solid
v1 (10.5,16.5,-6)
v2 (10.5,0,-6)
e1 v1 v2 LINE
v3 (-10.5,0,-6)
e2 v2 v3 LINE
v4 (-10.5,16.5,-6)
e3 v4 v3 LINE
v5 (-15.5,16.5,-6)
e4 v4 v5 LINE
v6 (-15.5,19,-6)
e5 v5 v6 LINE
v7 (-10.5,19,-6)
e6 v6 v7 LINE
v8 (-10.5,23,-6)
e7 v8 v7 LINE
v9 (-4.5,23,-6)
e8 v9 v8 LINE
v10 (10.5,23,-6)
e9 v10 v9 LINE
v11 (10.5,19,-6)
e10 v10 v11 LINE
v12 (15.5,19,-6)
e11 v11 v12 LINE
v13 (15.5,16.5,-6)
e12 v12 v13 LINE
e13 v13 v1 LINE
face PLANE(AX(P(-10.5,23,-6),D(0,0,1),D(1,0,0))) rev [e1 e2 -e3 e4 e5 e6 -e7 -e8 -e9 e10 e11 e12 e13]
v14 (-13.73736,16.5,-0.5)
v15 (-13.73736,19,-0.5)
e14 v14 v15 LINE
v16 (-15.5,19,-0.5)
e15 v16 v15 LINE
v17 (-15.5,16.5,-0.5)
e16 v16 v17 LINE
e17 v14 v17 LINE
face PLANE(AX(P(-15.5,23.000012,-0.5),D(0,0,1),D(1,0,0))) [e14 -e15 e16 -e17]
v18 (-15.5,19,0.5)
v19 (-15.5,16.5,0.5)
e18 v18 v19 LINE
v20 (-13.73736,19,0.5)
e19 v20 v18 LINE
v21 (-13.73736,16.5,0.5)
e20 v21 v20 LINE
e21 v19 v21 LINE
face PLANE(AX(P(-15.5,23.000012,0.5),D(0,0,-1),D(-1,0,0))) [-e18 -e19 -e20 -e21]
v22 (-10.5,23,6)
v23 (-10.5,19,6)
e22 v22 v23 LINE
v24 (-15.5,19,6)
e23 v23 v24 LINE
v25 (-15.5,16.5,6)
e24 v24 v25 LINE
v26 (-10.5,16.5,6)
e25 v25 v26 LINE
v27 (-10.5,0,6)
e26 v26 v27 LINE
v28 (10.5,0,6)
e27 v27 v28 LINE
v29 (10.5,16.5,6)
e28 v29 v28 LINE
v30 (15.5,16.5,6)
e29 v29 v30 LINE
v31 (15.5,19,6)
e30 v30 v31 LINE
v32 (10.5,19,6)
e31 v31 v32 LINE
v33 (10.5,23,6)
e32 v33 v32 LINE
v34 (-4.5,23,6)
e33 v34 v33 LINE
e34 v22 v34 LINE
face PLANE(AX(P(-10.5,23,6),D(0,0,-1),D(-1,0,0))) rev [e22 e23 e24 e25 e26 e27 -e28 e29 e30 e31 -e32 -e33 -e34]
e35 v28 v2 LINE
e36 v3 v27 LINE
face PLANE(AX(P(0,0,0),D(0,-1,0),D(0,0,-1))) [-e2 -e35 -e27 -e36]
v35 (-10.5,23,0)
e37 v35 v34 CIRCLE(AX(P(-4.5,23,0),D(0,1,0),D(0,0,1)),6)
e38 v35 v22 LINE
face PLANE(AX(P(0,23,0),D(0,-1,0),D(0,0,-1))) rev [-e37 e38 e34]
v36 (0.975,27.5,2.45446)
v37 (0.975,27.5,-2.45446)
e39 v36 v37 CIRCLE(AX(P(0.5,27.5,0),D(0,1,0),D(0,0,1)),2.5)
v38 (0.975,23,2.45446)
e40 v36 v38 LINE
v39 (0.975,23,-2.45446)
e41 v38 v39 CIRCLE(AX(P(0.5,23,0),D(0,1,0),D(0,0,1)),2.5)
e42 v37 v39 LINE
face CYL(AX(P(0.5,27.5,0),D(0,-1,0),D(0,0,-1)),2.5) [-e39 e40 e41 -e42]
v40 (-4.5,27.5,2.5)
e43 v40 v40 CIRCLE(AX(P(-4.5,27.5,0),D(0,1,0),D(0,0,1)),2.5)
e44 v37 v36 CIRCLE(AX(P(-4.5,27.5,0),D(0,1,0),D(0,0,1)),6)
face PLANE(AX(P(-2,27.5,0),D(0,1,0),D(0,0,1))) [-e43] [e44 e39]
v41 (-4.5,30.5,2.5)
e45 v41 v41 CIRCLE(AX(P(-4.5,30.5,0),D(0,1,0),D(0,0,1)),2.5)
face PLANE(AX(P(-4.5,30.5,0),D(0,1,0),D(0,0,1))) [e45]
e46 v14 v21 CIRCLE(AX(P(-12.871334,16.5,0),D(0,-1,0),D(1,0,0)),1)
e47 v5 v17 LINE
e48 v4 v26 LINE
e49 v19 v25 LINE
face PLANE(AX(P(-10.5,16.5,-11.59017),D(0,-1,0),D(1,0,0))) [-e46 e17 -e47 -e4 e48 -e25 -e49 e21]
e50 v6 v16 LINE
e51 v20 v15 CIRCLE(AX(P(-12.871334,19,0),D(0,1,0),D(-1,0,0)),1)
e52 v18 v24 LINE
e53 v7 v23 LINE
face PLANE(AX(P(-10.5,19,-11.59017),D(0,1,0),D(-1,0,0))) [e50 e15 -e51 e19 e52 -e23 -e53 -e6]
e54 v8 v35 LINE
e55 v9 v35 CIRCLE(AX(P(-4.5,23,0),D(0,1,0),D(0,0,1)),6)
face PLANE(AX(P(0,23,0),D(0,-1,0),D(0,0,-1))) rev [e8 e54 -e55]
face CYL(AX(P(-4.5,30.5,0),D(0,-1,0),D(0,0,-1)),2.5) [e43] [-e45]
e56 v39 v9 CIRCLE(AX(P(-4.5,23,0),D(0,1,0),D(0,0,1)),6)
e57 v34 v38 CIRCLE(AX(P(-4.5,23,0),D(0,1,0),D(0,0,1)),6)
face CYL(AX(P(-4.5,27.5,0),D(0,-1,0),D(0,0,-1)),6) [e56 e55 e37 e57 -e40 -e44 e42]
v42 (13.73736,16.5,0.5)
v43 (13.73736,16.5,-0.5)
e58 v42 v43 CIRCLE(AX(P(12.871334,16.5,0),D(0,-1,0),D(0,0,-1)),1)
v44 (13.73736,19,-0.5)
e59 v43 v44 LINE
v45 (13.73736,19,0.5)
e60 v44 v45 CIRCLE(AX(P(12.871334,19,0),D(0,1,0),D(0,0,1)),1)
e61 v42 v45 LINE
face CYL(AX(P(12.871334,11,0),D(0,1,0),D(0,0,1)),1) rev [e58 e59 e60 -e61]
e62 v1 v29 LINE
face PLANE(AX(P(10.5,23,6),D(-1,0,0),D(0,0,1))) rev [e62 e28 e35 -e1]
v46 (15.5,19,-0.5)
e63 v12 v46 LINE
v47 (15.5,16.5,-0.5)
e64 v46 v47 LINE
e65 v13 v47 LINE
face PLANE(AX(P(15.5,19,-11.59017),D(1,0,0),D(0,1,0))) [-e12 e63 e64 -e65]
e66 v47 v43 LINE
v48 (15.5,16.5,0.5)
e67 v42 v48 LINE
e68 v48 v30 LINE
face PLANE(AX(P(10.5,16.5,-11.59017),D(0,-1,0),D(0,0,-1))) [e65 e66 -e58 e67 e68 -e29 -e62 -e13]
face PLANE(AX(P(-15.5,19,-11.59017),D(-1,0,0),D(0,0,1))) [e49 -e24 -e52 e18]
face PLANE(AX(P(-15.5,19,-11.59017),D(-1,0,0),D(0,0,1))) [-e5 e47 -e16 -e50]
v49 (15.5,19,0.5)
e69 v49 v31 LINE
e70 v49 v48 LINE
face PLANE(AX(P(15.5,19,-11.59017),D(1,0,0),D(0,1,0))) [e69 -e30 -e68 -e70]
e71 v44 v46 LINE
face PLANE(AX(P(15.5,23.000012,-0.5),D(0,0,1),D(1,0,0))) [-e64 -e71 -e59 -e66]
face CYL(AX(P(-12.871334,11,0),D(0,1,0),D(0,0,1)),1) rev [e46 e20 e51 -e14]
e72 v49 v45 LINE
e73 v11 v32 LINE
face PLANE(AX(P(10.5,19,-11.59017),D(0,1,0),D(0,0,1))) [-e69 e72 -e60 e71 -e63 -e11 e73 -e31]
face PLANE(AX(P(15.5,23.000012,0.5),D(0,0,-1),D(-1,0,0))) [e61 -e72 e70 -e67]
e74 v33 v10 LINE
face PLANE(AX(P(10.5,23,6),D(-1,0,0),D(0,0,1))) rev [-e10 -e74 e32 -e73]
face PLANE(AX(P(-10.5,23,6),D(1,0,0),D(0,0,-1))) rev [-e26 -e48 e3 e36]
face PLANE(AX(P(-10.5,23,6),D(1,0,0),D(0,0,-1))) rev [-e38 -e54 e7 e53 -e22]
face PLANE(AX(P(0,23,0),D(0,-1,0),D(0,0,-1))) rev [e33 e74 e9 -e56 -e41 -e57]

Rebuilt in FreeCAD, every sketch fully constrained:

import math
import FreeCAD as App
import Part
import Sketcher
from FreeCAD import Vector
Q = App.Units.Quantity

doc = App.newDocument("Part")
body = doc.addObject("PartDesign::Body", "Body")

# Sketch on XZ plane
sketch1 = body.newObject("Sketcher::SketchObject", "Sketch")
sketch1.AttachmentSupport = (doc.getObject("XZ_Plane"), [""])
sketch1.MapMode = "FlatFace"
sketch1.addGeometry(Part.LineSegment(Vector(-10, -6, 0), Vector(-10, 6, 0)), False)
sketch1.addGeometry(Part.LineSegment(Vector(-10, 6, 0), Vector(10, 6, 0)), False)
sketch1.addGeometry(Part.LineSegment(Vector(10, 6, 0), Vector(10, -6, 0)), False)
sketch1.addGeometry(Part.LineSegment(Vector(10, -6, 0), Vector(-10, -6, 0)), False)
sketch1.addConstraint(Sketcher.Constraint("Coincident", 0, 2, 1, 1))
sketch1.addConstraint(Sketcher.Constraint("Coincident", 1, 2, 2, 1))
sketch1.addConstraint(Sketcher.Constraint("Coincident", 2, 2, 3, 1))
sketch1.addConstraint(Sketcher.Constraint("Coincident", 3, 2, 0, 1))
sketch1.addConstraint(Sketcher.Constraint("Vertical", 0))
sketch1.addConstraint(Sketcher.Constraint("Horizontal", 1))
sketch1.addConstraint(Sketcher.Constraint("Vertical", 2))
sketch1.addConstraint(Sketcher.Constraint("Horizontal", 3))
sketch1.addConstraint(Sketcher.Constraint("Symmetric", 0, 2, 2, 2, -1, 1))
sketch1.addConstraint(Sketcher.Constraint("DistanceX", 1, 1, 1, 2, Q("21 mm")))
sketch1.addConstraint(Sketcher.Constraint("DistanceY", 0, 1, 0, 2, Q("12 mm")))
pad1 = body.newObject("PartDesign::Pad", "Pad")
pad1.Profile = sketch1
pad1.Length = 23
pad1.Reversed = True

# Sketch on XY plane
sketch2 = body.newObject("Sketcher::SketchObject", "Sketch001")
sketch2.AttachmentSupport = (doc.getObject("XY_Plane"), [""])
sketch2.MapMode = "FlatFace"
sketch2.AttachmentOffset = App.Placement(Vector(0, 0, 6), App.Rotation())
sketch2.addGeometry(Part.LineSegment(Vector(10.5, 19, 0), Vector(10.5, 16.5, 0)), False)
sketch2.addGeometry(Part.LineSegment(Vector(10.5, 16.5, 0), Vector(15.5, 16.5, 0)), False)
sketch2.addGeometry(Part.LineSegment(Vector(15.5, 16.5, 0), Vector(15.5, 19, 0)), False)
sketch2.addGeometry(Part.LineSegment(Vector(15.5, 19, 0), Vector(10.5, 19, 0)), False)
sketch2.addGeometry(Part.LineSegment(Vector(-15.5, 19, 0), Vector(-15.5, 16.5, 0)), False)
sketch2.addGeometry(Part.LineSegment(Vector(-15.5, 16.5, 0), Vector(-10.5, 16.5, 0)), False)
sketch2.addGeometry(Part.LineSegment(Vector(-10.5, 16.5, 0), Vector(-10.5, 19, 0)), False)
sketch2.addGeometry(Part.LineSegment(Vector(-10.5, 19, 0), Vector(-15.5, 19, 0)), False)
sketch2.addConstraint(Sketcher.Constraint("Coincident", 0, 2, 1, 1))
sketch2.addConstraint(Sketcher.Constraint("Coincident", 1, 2, 2, 1))
sketch2.addConstraint(Sketcher.Constraint("Coincident", 2, 2, 3, 1))
sketch2.addConstraint(Sketcher.Constraint("Coincident", 3, 2, 0, 1))
sketch2.addConstraint(Sketcher.Constraint("Coincident", 4, 2, 5, 1))
sketch2.addConstraint(Sketcher.Constraint("Coincident", 5, 2, 6, 1))
sketch2.addConstraint(Sketcher.Constraint("Coincident", 6, 2, 7, 1))
sketch2.addConstraint(Sketcher.Constraint("Coincident", 7, 2, 4, 1))
sketch2.addConstraint(Sketcher.Constraint("Vertical", 0))
sketch2.addConstraint(Sketcher.Constraint("Horizontal", 1))
sketch2.addConstraint(Sketcher.Constraint("Vertical", 2))
sketch2.addConstraint(Sketcher.Constraint("Horizontal", 3))
sketch2.addConstraint(Sketcher.Constraint("Vertical", 4))
sketch2.addConstraint(Sketcher.Constraint("Horizontal", 5))
sketch2.addConstraint(Sketcher.Constraint("Vertical", 6))
sketch2.addConstraint(Sketcher.Constraint("Horizontal", 7))
sketch2.addConstraint(Sketcher.Constraint("Symmetric", 1, 2, 4, 2, -2))
sketch2.addConstraint(Sketcher.Constraint("Symmetric", 3, 2, 6, 2, -2))
sketch2.addConstraint(Sketcher.Constraint("DistanceX", 1, 1, 1, 2, Q("5 mm")))
sketch2.addConstraint(Sketcher.Constraint("DistanceY", 0, 2, 0, 1, Q("2.5 mm")))
sketch2.addConstraint(Sketcher.Constraint("DistanceY", -1, 1, 2, 2, Q("19 mm")))
sketch2.addConstraint(Sketcher.Constraint("DistanceX", 4, 2, 0, 2, Q("26 mm")))
pad2 = body.newObject("PartDesign::Pad", "Pad001")
pad2.Profile = sketch2
pad2.Length = 12
pad2.Reversed = True

# Sketch on XZ plane
sketch3 = body.newObject("Sketcher::SketchObject", "Sketch002")
sketch3.AttachmentSupport = (doc.getObject("XZ_Plane"), [""])
sketch3.MapMode = "FlatFace"
sketch3.AttachmentOffset = App.Placement(Vector(0, 0, -23), App.Rotation())
sketch3.addGeometry(Part.LineSegment(Vector(15.5, 0.5, 0), Vector(15.5, -0.5, 0)), False)
sketch3.addGeometry(Part.LineSegment(Vector(15.5, -0.5, 0), Vector(13.7, -0.5, 0)), False)
sketch3.addGeometry(Part.ArcOfCircle(Part.Circle(Vector(12.9, 0, 0), Vector(0, 0, 1), 1), math.radians(30), math.radians(330)), False)
sketch3.addGeometry(Part.LineSegment(Vector(13.7, 0.5, 0), Vector(15.5, 0.5, 0)), False)
sketch3.addGeometry(Part.LineSegment(Vector(-13.7, -0.5, 0), Vector(-15.5, -0.5, 0)), False)
sketch3.addGeometry(Part.LineSegment(Vector(-15.5, -0.5, 0), Vector(-15.5, 0.5, 0)), False)
sketch3.addGeometry(Part.LineSegment(Vector(-15.5, 0.5, 0), Vector(-13.7, 0.5, 0)), False)
sketch3.addGeometry(Part.ArcOfCircle(Part.Circle(Vector(-12.9, 0, 0), Vector(0, 0, 1), 1), math.radians(-150), math.radians(150)), False)
sketch3.addConstraint(Sketcher.Constraint("Coincident", 0, 2, 1, 1))
sketch3.addConstraint(Sketcher.Constraint("Coincident", 1, 2, 2, 2))
sketch3.addConstraint(Sketcher.Constraint("Coincident", 2, 1, 3, 1))
sketch3.addConstraint(Sketcher.Constraint("Coincident", 3, 2, 0, 1))
sketch3.addConstraint(Sketcher.Constraint("Coincident", 4, 2, 5, 1))
sketch3.addConstraint(Sketcher.Constraint("Coincident", 5, 2, 6, 1))
sketch3.addConstraint(Sketcher.Constraint("Coincident", 6, 2, 7, 2))
sketch3.addConstraint(Sketcher.Constraint("Coincident", 7, 1, 4, 1))
sketch3.addConstraint(Sketcher.Constraint("Vertical", 0))
sketch3.addConstraint(Sketcher.Constraint("Horizontal", 1))
sketch3.addConstraint(Sketcher.Constraint("Horizontal", 3))
sketch3.addConstraint(Sketcher.Constraint("Horizontal", 4))
sketch3.addConstraint(Sketcher.Constraint("Vertical", 5))
sketch3.addConstraint(Sketcher.Constraint("Horizontal", 6))
sketch3.addConstraint(Sketcher.Constraint("Equal", 2, 7))
sketch3.addConstraint(Sketcher.Constraint("Symmetric", 2, 3, 7, 3, -1, 1))
sketch3.addConstraint(Sketcher.Constraint("Symmetric", 3, 2, 4, 2, -1, 1))
sketch3.addConstraint(Sketcher.Constraint("Symmetric", 2, 1, 6, 2, -2))
sketch3.addConstraint(Sketcher.Constraint("Horizontal", 1, 2, 4, 2))
sketch3.addConstraint(Sketcher.Constraint("Radius", 2, Q("1 mm")))
sketch3.addConstraint(Sketcher.Constraint("DistanceY", 0, 2, 0, 1, Q("1 mm")))
sketch3.addConstraint(Sketcher.Constraint("DistanceX", 4, 2, 0, 2, Q("31 mm")))
sketch3.addConstraint(Sketcher.Constraint("DistanceX", 1, 2, 1, 1, Q("1.76264 mm")))
pocket1 = body.newObject("PartDesign::Pocket", "Pocket")
pocket1.Profile = sketch3
pocket1.Type = "ThroughAll"
pocket1.Midplane = True

# Sketch on XZ plane
sketch4 = body.newObject("Sketcher::SketchObject", "Sketch003")
sketch4.AttachmentSupport = (doc.getObject("XZ_Plane"), [""])
sketch4.MapMode = "FlatFace"
sketch4.AttachmentOffset = App.Placement(Vector(0, 0, -23), App.Rotation())
sketch4.addGeometry(Part.ArcOfCircle(Part.Circle(Vector(-4.5, 0, 0), Vector(0, 0, 1), 6), math.radians(24), math.radians(336)), False)
sketch4.addGeometry(Part.ArcOfCircle(Part.Circle(Vector(0.5, 0, 0), Vector(0, 0, 1), 2.5), math.radians(-79), math.radians(79)), False)
sketch4.addConstraint(Sketcher.Constraint("Coincident", 0, 1, 1, 2))
sketch4.addConstraint(Sketcher.Constraint("Coincident", 1, 1, 0, 2))
sketch4.addConstraint(Sketcher.Constraint("Symmetric", 0, 1, 1, 1, -1))
sketch4.addConstraint(Sketcher.Constraint("Radius", 0, Q("6 mm")))
sketch4.addConstraint(Sketcher.Constraint("Radius", 1, Q("2.5 mm")))
sketch4.addConstraint(Sketcher.Constraint("DistanceX", 0, 3, 1, 3, Q("5 mm")))
sketch4.addConstraint(Sketcher.Constraint("DistanceX", 0, 3, -1, 1, Q("4.5 mm")))
pad3 = body.newObject("PartDesign::Pad", "Pad002")
pad3.Profile = sketch4
pad3.Length = 4.5
pad3.Reversed = True

# Sketch on XZ plane
sketch5 = body.newObject("Sketcher::SketchObject", "Sketch004")
sketch5.AttachmentSupport = (doc.getObject("XZ_Plane"), [""])
sketch5.MapMode = "FlatFace"
sketch5.AttachmentOffset = App.Placement(Vector(0, 0, -27.5), App.Rotation())
sketch5.addGeometry(Part.Circle(Vector(-4.5, 0, 0), Vector(0, 0, 1), 2.5), False)
sketch5.addConstraint(Sketcher.Constraint("PointOnObject", 0, 3, -1))
sketch5.addConstraint(Sketcher.Constraint("Diameter", 0, Q("5 mm")))
sketch5.addConstraint(Sketcher.Constraint("DistanceX", 0, 3, -1, 1, Q("4.5 mm")))
pad4 = body.newObject("PartDesign::Pad", "Pad003")
pad4.Profile = sketch5
pad4.Length = 3
pad4.Reversed = True

doc.recompute()
